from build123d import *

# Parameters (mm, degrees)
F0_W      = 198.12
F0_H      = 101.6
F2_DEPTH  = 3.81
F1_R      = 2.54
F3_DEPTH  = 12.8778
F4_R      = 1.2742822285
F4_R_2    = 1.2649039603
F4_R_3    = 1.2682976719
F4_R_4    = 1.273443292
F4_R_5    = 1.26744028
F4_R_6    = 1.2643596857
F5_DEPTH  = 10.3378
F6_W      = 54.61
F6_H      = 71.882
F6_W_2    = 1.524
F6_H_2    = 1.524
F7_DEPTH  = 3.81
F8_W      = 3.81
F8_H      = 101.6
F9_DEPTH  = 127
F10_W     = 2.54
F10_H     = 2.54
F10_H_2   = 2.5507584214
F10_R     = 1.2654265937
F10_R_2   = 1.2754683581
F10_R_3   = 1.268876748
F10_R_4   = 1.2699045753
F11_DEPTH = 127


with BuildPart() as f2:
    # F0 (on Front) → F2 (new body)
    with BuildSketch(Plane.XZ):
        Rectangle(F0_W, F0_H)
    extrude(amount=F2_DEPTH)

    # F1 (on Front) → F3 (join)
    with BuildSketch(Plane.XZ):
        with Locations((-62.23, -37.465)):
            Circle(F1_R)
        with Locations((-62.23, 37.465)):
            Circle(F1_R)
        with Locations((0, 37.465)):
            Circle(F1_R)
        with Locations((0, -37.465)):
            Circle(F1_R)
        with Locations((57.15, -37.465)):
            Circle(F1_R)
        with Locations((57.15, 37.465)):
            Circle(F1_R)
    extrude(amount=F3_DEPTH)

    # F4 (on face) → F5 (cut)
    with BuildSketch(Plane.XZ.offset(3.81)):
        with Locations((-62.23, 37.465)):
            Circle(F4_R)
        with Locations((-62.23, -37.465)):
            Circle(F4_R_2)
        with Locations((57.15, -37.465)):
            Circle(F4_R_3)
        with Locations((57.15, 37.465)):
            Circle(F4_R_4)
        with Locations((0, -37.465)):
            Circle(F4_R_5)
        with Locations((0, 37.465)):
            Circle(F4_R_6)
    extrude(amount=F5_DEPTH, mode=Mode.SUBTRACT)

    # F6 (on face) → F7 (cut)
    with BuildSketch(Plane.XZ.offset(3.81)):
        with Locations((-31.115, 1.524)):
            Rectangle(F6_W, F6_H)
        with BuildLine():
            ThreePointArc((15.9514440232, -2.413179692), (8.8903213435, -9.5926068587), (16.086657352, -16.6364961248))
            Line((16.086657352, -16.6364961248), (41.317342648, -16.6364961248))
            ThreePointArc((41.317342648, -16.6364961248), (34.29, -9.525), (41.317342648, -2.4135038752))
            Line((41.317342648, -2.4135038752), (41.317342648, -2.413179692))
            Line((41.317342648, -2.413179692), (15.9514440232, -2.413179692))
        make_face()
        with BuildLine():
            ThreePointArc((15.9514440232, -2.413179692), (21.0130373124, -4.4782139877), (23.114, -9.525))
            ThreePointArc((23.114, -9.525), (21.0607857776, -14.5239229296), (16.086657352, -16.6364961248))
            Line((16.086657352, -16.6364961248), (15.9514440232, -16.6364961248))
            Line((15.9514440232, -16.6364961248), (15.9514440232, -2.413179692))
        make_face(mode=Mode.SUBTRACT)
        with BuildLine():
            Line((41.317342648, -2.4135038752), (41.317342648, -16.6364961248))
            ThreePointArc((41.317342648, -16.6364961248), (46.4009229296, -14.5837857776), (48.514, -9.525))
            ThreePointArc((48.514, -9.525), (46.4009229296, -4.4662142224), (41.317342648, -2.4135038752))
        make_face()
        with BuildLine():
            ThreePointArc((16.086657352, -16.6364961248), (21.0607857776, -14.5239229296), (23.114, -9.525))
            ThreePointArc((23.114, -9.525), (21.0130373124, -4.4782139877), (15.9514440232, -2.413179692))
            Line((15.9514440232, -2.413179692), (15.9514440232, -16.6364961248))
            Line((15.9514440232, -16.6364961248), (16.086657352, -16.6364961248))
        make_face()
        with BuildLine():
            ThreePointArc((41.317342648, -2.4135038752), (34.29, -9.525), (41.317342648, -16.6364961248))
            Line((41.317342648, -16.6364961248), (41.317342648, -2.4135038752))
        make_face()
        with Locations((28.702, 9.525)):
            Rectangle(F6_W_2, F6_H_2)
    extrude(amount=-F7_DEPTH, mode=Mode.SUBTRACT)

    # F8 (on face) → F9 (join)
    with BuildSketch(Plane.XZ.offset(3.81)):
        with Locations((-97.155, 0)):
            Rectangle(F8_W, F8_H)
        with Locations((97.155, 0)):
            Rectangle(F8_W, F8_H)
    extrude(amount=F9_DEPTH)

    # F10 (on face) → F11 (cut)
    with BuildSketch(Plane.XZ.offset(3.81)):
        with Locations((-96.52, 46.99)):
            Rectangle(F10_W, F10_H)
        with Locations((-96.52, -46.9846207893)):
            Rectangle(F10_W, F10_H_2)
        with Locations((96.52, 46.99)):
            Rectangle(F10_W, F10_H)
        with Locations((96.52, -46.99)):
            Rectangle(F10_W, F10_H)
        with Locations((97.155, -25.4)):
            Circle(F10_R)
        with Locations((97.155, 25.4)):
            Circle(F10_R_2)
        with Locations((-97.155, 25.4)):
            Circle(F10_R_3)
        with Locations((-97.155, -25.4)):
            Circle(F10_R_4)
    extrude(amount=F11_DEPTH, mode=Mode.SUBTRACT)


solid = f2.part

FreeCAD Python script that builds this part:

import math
import FreeCAD as App
import Part
import Sketcher
Q = App.Units.Quantity


def add_polygon(sketch, points):
    """Adds a closed chain of lines whose ends are joined by coincident constraints."""
    first, n = sketch.GeometryCount, len(points)
    for a, b in zip(points, points[1:] + points[:1]):
        sketch.addGeometry(Part.LineSegment(App.Vector(*a, 0), App.Vector(*b, 0)), False)
    for i in range(n):
        sketch.addConstraint(Sketcher.Constraint("Coincident", first + i, 2, first + (i + 1) % n, 1))

doc = App.newDocument("Part")
params = doc.addObject("Spreadsheet::Sheet", "Params")
for row, (alias, value) in enumerate([
    ("sketch1_height", "4 in"),
    ("sketch1_width", "7.8 in"),
    ("pad1_length", "0.15 in"),
    ("sketch2_diameter", "0.2 in"),
    ("pad2_length", "0.507 in"),
    ("pocket1_length", "0.407 in"),
    ("sketch4_radius", "0.28 in"),
    ("sketch4_width", "2.15 in"),
    ("sketch4_width2", "0.06 in"),
    ("sketch4_height", "2.83 in"),
    ("pocket2_length", "0.15 in"),
    ("sketch5_height", "4 in"),
    ("sketch5_width", "0.15 in"),
    ("pad3_length", "5 in"),
    ("sketch6_width", "0.1 in"),
    ("pocket3_length", "5 in"),
], start=1):
    params.set(f"A{row}", alias)
    params.set(f"B{row}", "=" + value)
    params.setAlias(f"B{row}", alias)

body = doc.addObject("PartDesign::Body", "Body")

# Sketch on XZ plane
sketch1 = doc.addObject("Sketcher::SketchObject", "Sketch")
body.addObject(sketch1)
sketch1.AttachmentSupport = (doc.XZ_Plane, [""])
sketch1.MapMode = "FlatFace"
add_polygon(sketch1, [(-99, 51), (-99, -51), (99, -51), (99, 51)])  # lines 0-3
sketch1.addConstraint([
    Sketcher.Constraint("Vertical", 0),
    Sketcher.Constraint("Horizontal", 1),
    Sketcher.Constraint("Vertical", 2),
    Sketcher.Constraint("Horizontal", 3),
    Sketcher.Constraint("Symmetric", 0, 2, 2, 2, -1, 1),
    Sketcher.Constraint("DistanceY", 0, 2, 0, 1, Q("4 in")),
    Sketcher.Constraint("DistanceX", 1, 1, 1, 2, Q("7.8 in")),
])
sketch1.setExpression("Constraints[9]", "Params.sketch1_height")
sketch1.setExpression("Constraints[10]", "Params.sketch1_width")
pad1 = doc.addObject("PartDesign::Pad", "Pad")
body.addObject(pad1)
pad1.Profile = sketch1
pad1.setExpression("Length", "Params.pad1_length")

# Sketch on XZ plane
sketch2 = doc.addObject("Sketcher::SketchObject", "Sketch001")
body.addObject(sketch2)
sketch2.AttachmentSupport = (doc.XZ_Plane, [""])
sketch2.MapMode = "FlatFace"
sketch2.addGeometry([
    Part.Circle(App.Vector(-62.2, -37.5, 0), App.Vector(0, 0, 1), 2.5),  # 0
    Part.Circle(App.Vector(-62.2, 37.5, 0), App.Vector(0, 0, 1), 2.5),  # 1
    Part.Circle(App.Vector(0, 37.5, 0), App.Vector(0, 0, 1), 2.5),  # 2
    Part.Circle(App.Vector(0, -37.5, 0), App.Vector(0, 0, 1), 2.5),  # 3
    Part.Circle(App.Vector(57.1, -37.5, 0), App.Vector(0, 0, 1), 2.5),  # 4
    Part.Circle(App.Vector(57.1, 37.5, 0), App.Vector(0, 0, 1), 2.5),  # 5
], False)
sketch2.addConstraint([
    Sketcher.Constraint("Equal", 0, 1),
    Sketcher.Constraint("Equal", 1, 2),
    Sketcher.Constraint("Equal", 2, 3),
    Sketcher.Constraint("Equal", 3, 4),
    Sketcher.Constraint("Equal", 4, 5),
    Sketcher.Constraint("Symmetric", 2, 3, 3, 3, -1, 1),
    Sketcher.Constraint("Symmetric", 0, 3, 1, 3, -1),
    Sketcher.Constraint("Symmetric", 4, 3, 5, 3, -1),
    Sketcher.Constraint("PointOnObject", 2, 3, -2),
    Sketcher.Constraint("Horizontal", 1, 3, 2, 3),
    Sketcher.Constraint("Horizontal", 3, 3, 4, 3),
    Sketcher.Constraint("Diameter", 0, Q("0.2 in")),
    Sketcher.Constraint("DistanceX", 0, 3, 4, 3, Q("4.7 in")),
    Sketcher.Constraint("DistanceX", 0, 3, -1, 1, Q("2.45 in")),
    Sketcher.Constraint("DistanceY", 0, 3, 1, 3, Q("2.95 in")),
])
sketch2.setExpression("Constraints[11]", "Params.sketch2_diameter")
pad2 = doc.addObject("PartDesign::Pad", "Pad001")
body.addObject(pad2)
pad2.Profile = sketch2
pad2.setExpression("Length", "Params.pad2_length")

# Sketch on XZ plane
sketch3 = doc.addObject("Sketcher::SketchObject", "Sketch002")
body.addObject(sketch3)
sketch3.AttachmentSupport = (doc.XZ_Plane, [""])
sketch3.MapMode = "FlatFace"
sketch3.AttachmentOffset = App.Placement(App.Vector(0, 0, 0.15 * 25.4), App.Rotation())
sketch3.addGeometry([
    Part.Circle(App.Vector(-62.2, 37.5, 0), App.Vector(0, 0, 1), 1.3),  # 0
    Part.Circle(App.Vector(-62.2, -37.5, 0), App.Vector(0, 0, 1), 1.3),  # 1
    Part.Circle(App.Vector(57.1, -37.5, 0), App.Vector(0, 0, 1), 1.3),  # 2
    Part.Circle(App.Vector(57.1, 37.5, 0), App.Vector(0, 0, 1), 1.3),  # 3
    Part.Circle(App.Vector(0, -37.5, 0), App.Vector(0, 0, 1), 1.3),  # 4
    Part.Circle(App.Vector(0, 37.5, 0), App.Vector(0, 0, 1), 1.3),  # 5
], False)
sketch3.addConstraint([
    Sketcher.Constraint("Symmetric", 4, 3, 5, 3, -1, 1),
    Sketcher.Constraint("Symmetric", 0, 3, 1, 3, -1),
    Sketcher.Constraint("Symmetric", 2, 3, 3, 3, -1),
    Sketcher.Constraint("PointOnObject", 4, 3, -2),
    Sketcher.Constraint("Horizontal", 1, 3, 2, 3),
    Sketcher.Constraint("Horizontal", 2, 3, 4, 3),
    Sketcher.Constraint("DistanceX", 1, 3, 2, 3, Q("4.7 in")),
    Sketcher.Constraint("DistanceX", 0, 3, -1, 1, Q("2.45 in")),
    Sketcher.Constraint("DistanceY", 1, 3, 0, 3, Q("2.95 in")),
    Sketcher.Constraint("Diameter", 4, 2.534881),
    Sketcher.Constraint("Diameter", 5, 2.528719),
    Sketcher.Constraint("Diameter", 0, 2.548564),
    Sketcher.Constraint("Diameter", 1, 2.529808),
    Sketcher.Constraint("Diameter", 2, 2.536595),
    Sketcher.Constraint("Diameter", 3, 2.546887),
])
pocket1 = doc.addObject("PartDesign::Pocket", "Pocket")
body.addObject(pocket1)
pocket1.Profile = sketch3
pocket1.setExpression("Length", "Params.pocket1_length")
pocket1.Reversed = True

# Sketch on XZ plane
sketch4 = doc.addObject("Sketcher::SketchObject", "Sketch003")
body.addObject(sketch4)
sketch4.AttachmentSupport = (doc.XZ_Plane, [""])
sketch4.MapMode = "FlatFace"
sketch4.AttachmentOffset = App.Placement(App.Vector(0, 0, 0.15 * 25.4), App.Rotation())
add_polygon(sketch4, [(-58.42, 37.465), (-58.42, -34.417), (-3.81, -34.417), (-3.81, 37.465)])  # lines 0-3
sketch4.addGeometry(Part.ArcOfCircle(Part.Circle(App.Vector(16.002, -9.525, 0), App.Vector(0, 0, 1), 7.112), math.radians(90), math.radians(271)), False)  # 4
sketch4.addGeometry(Part.LineSegment(App.Vector(16.08666, -16.6365, 0), App.Vector(41.31734, -16.6365, 0)), False)  # 5
sketch4.addGeometry(Part.ArcOfCircle(Part.Circle(App.Vector(41.402, -9.525, 0), App.Vector(0, 0, 1), 7.112), math.radians(-91), math.radians(0)), False)  # 6
sketch4.addGeometry(Part.ArcOfCircle(Part.Circle(App.Vector(41.402, -9.525, 0), App.Vector(0, 0, 1), 7.112), math.radians(0), math.radians(91)), False)  # 7
sketch4.addGeometry(Part.LineSegment(App.Vector(41.31734, -2.4135, 0), App.Vector(41.31734, -2.41318, 0)), False)  # 8
sketch4.addGeometry(Part.LineSegment(App.Vector(41.31734, -2.41318, 0), App.Vector(16.05256, -2.41318, 0)), False)  # 9
sketch4.addGeometry(Part.ArcOfCircle(Part.Circle(App.Vector(16.002, -9.525, 0), App.Vector(0, 0, 1), 7.112), math.radians(89.59), math.radians(90.41)), False)  # 10
add_polygon(sketch4, [(27.94, 10.287), (27.94, 8.763), (29.464, 8.763), (29.464, 10.287)])  # lines 11-14
sketch4.addConstraint([
    Sketcher.Constraint("Coincident", 4, 2, 5, 1),
    Sketcher.Constraint("Coincident", 5, 2, 6, 1),
    Sketcher.Constraint("Tangent", 6, 2, 7, 1),
    Sketcher.Constraint("Coincident", 7, 2, 8, 1),
    Sketcher.Constraint("Coincident", 8, 2, 9, 1),
    Sketcher.Constraint("Coincident", 9, 2, 10, 1),
    Sketcher.Constraint("Tangent", 10, 2, 4, 1),
    Sketcher.Constraint("Vertical", 0),
    Sketcher.Constraint("Horizontal", 1),
    Sketcher.Constraint("Vertical", 2),
    Sketcher.Constraint("Horizontal", 3),
    Sketcher.Constraint("Horizontal", 5),
    Sketcher.Constraint("Vertical", 8),
    Sketcher.Constraint("Horizontal", 9),
    Sketcher.Constraint("Vertical", 11),
    Sketcher.Constraint("Horizontal", 12),
    Sketcher.Constraint("Vertical", 13),
    Sketcher.Constraint("Horizontal", 14),
    Sketcher.Constraint("Equal", 4, 6),
    Sketcher.Constraint("Equal", 6, 7),
    Sketcher.Constraint("Equal", 7, 10),
    Sketcher.Constraint("Horizontal", 4, 3, 6, 3),
    Sketcher.Constraint("Horizontal", 10, 3, 6, 2),
    Sketcher.Constraint("Horizontal", 9, 2, 10, 2),
    Sketcher.Constraint("Vertical", 5, 2, 7, 2),
    Sketcher.Constraint("Equal", 14, 11),
    Sketcher.Constraint("Radius", 4, Q("0.28 in")),
    Sketcher.Constraint("DistanceX", 4, 3, 6, 3, Q("1 in")),
    Sketcher.Constraint("DistanceX", 1, 1, 1, 2, Q("2.15 in")),
    Sketcher.Constraint("DistanceX", 12, 1, 12, 2, Q("0.06 in")),
    Sketcher.Constraint("DistanceY", 0, 2, 0, 1, Q("2.83 in")),
    Sketcher.Constraint("DistanceX", 0, 2, -1, 1, Q("2.3 in")),
    Sketcher.Constraint("DistanceX", -1, 1, 11, 2, Q("1.1 in")),
    Sketcher.Constraint("DistanceX", -1, 1, 4, 3, Q("0.63 in")),
    Sketcher.Constraint("DistanceY", 0, 2, 4, 3, Q("0.98 in")),
    Sketcher.Constraint("DistanceY", 4, 3, 11, 2, Q("0.72 in")),
    Sketcher.Constraint("DistanceY", 4, 3, -1, 1, Q("0.375 in")),
    Sketcher.Constraint("DistanceX", 9, 2, 4, 2, 0.034101),
    Sketcher.Constraint("DistanceX", 5, 1, 5, 2, 25.230685),
])
sketch4.setExpression("Constraints[34]", "Params.sketch4_radius")
sketch4.setExpression("Constraints[36]", "Params.sketch4_width")
sketch4.setExpression("Constraints[37]", "Params.sketch4_width2")
sketch4.setExpression("Constraints[38]", "Params.sketch4_height")
pocket2 = doc.addObject("PartDesign::Pocket", "Pocket001")
body.addObject(pocket2)
pocket2.Profile = sketch4
pocket2.setExpression("Length", "Params.pocket2_length")

# Sketch on XZ plane
sketch5 = doc.addObject("Sketcher::SketchObject", "Sketch004")
body.addObject(sketch5)
sketch5.AttachmentSupport = (doc.XZ_Plane, [""])
sketch5.MapMode = "FlatFace"
sketch5.AttachmentOffset = App.Placement(App.Vector(0, 0, 0.15 * 25.4), App.Rotation())
add_polygon(sketch5, [(-99.1, 50.8), (-99.1, -50.8), (-95.2, -50.8), (-95.2, 50.8)])  # lines 0-3
add_polygon(sketch5, [(95.2, 50.8), (95.2, -50.8), (99.1, -50.8), (99.1, 50.8)])  # lines 4-7
sketch5.addConstraint([
    Sketcher.Constraint("Vertical", 0),
    Sketcher.Constraint("Horizontal", 1),
    Sketcher.Constraint("Vertical", 2),
    Sketcher.Constraint("Horizontal", 3),
    Sketcher.Constraint("Vertical", 4),
    Sketcher.Constraint("Horizontal", 5),
    Sketcher.Constraint("Vertical", 6),
    Sketcher.Constraint("Horizontal", 7),
    Sketcher.Constraint("Symmetric", 2, 2, 4, 2, -1, 1),
    Sketcher.Constraint("Symmetric", 0, 2, 6, 2, -1, 1),
    Sketcher.Constraint("Horizontal", 1, 2, 4, 2),
    Sketcher.Constraint("DistanceY", 0, 2, 0, 1, Q("4 in")),
    Sketcher.Constraint("DistanceX", 1, 1, 1, 2, Q("0.15 in")),
    Sketcher.Constraint("DistanceX", 0, 2, -1, 1, Q("3.9 in")),
])
sketch5.setExpression("Constraints[19]", "Params.sketch5_height")
sketch5.setExpression("Constraints[20]", "Params.sketch5_width")
pad3 = doc.addObject("PartDesign::Pad", "Pad002")
body.addObject(pad3)
pad3.Profile = sketch5
pad3.setExpression("Length", "Params.pad3_length")

# Sketch on XZ plane
sketch6 = doc.addObject("Sketcher::SketchObject", "Sketch005")
body.addObject(sketch6)
sketch6.AttachmentSupport = (doc.XZ_Plane, [""])
sketch6.MapMode = "FlatFace"
sketch6.AttachmentOffset = App.Placement(App.Vector(0, 0, 0.15 * 25.4), App.Rotation())
add_polygon(sketch6, [(-97.8, 48.3), (-97.8, 45.7), (-95.2, 45.7), (-95.2, 48.3)])  # lines 0-3
add_polygon(sketch6, [(-97.8, -45.7), (-97.8, -48.3), (-95.2, -48.3), (-95.2, -45.7)])  # lines 4-7
add_polygon(sketch6, [(95.2, 48.3), (95.2, 45.7), (97.8, 45.7), (97.8, 48.3)])  # lines 8-11
add_polygon(sketch6, [(95.2, -45.7), (95.2, -48.3), (97.8, -48.3), (97.8, -45.7)])  # lines 12-15
sketch6.addGeometry(Part.Circle(App.Vector(97.2, -25.4, 0), App.Vector(0, 0, 1), 1.3), False)  # 16
sketch6.addGeometry(Part.Circle(App.Vector(97.2, 25.4, 0), App.Vector(0, 0, 1), 1.3), False)  # 17
sketch6.addGeometry(Part.Circle(App.Vector(-97.2, 25.4, 0), App.Vector(0, 0, 1), 1.3), False)  # 18
sketch6.addGeometry(Part.Circle(App.Vector(-97.2, -25.4, 0), App.Vector(0, 0, 1), 1.3), False)  # 19
sketch6.addConstraint([
    Sketcher.Constraint("Vertical", 0),
    Sketcher.Constraint("Horizontal", 1),
    Sketcher.Constraint("Vertical", 2),
    Sketcher.Constraint("Horizontal", 3),
    Sketcher.Constraint("Vertical", 4),
    Sketcher.Constraint("Horizontal", 5),
    Sketcher.Constraint("Vertical", 6),
    Sketcher.Constraint("Horizontal", 7),
    Sketcher.Constraint("Vertical", 8),
    Sketcher.Constraint("Horizontal", 9),
    Sketcher.Constraint("Vertical", 10),
    Sketcher.Constraint("Horizontal", 11),
    Sketcher.Constraint("Vertical", 12),
    Sketcher.Constraint("Horizontal", 13),
    Sketcher.Constraint("Vertical", 14),
    Sketcher.Constraint("Horizontal", 15),
    Sketcher.Constraint("Symmetric", 16, 3, 18, 3, -1, 1),
    Sketcher.Constraint("Symmetric", 17, 3, 19, 3, -1, 1),
    Sketcher.Constraint("Symmetric", 4, 2, 10, 2, -1, 1),
    Sketcher.Constraint("Symmetric", 2, 2, 12, 2, -1, 1),
    Sketcher.Constraint("Symmetric", 0, 2, 14, 2, -1, 1),
    Sketcher.Constraint("Symmetric", 17, 3, 18, 3, -2),
    Sketcher.Constraint("Symmetric", 1, 2, 8, 2, -2),
    Sketcher.Constraint("Symmetric", 3, 2, 10, 2, -2),
    Sketcher.Constraint("Vertical", 2, 2, 5, 2),
    Sketcher.Constraint("Equal", 15, 0),
    Sketcher.Constraint("DistanceX", 1, 1, 1, 2, Q("0.1 in")),
    Sketcher.Constraint("DistanceY", 16, 3, -1, 1, Q("1 in")),
    Sketcher.Constraint("DistanceY", -1, 1, 0, 2, Q("1.8 in")),
    Sketcher.Constraint("DistanceX", 1, 2, 8, 2, Q("7.5 in")),
    Sketcher.Constraint("DistanceX", 18, 3, 17, 3, Q("7.65 in")),
    Sketcher.Constraint("Diameter", 19, 2.539809),
    Sketcher.Constraint("Diameter", 16, 2.530853),
    Sketcher.Constraint("Diameter", 17, 2.550937),
    Sketcher.Constraint("Diameter", 18, 2.537753),
    Sketcher.Constraint("DistanceY", 4, 2, 4, 1, 2.550758),
])
sketch6.setExpression("Constraints[42]", "Params.sketch6_width")
pocket3 = doc.addObject("PartDesign::Pocket", "Pocket002")
body.addObject(pocket3)
pocket3.Profile = sketch6
pocket3.setExpression("Length", "Params.pocket3_length")
pocket3.Reversed = True

doc.recompute()
